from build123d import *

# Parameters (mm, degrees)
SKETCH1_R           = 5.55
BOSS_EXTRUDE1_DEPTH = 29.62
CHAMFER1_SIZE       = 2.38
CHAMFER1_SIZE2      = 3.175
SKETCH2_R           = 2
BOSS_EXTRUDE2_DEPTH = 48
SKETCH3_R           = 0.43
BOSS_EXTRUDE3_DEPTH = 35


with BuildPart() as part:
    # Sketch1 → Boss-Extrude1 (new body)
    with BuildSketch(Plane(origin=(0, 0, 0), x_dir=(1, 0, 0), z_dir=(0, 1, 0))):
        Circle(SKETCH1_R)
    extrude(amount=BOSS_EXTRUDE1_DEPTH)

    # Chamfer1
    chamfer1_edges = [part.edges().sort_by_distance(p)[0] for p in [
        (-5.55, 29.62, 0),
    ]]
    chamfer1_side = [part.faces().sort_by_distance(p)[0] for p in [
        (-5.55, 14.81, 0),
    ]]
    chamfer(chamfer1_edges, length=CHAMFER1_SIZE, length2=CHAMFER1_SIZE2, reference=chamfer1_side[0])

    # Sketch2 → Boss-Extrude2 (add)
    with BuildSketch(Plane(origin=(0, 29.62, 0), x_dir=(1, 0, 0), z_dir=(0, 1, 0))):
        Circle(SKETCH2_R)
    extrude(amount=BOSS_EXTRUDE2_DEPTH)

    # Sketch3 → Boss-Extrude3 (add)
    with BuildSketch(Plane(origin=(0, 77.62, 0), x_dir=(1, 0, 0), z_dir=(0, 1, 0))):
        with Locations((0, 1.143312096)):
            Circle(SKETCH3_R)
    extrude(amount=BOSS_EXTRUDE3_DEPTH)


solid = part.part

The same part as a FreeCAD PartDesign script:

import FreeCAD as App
import Part
import Sketcher
from FreeCAD import Vector


def edges_at(feature, points):
    """Names of the edges that pass closest to the given points."""
    edges = feature.Shape.Edges
    near = lambda p: min(range(len(edges)), key=lambda i: edges[i].distToShape(Part.Vertex(*p))[0])
    return sorted({f"Edge{near(p) + 1}" for p in points})

doc = App.newDocument("Part")
body = doc.addObject("PartDesign::Body", "Body")

sketch1 = body.newObject("Sketcher::SketchObject", "Sketch")
sketch1.AttachmentSupport = (doc.getObject("XZ_Plane"), [""])
sketch1.MapMode = "FlatFace"
sketch1.addGeometry(Part.Circle(Vector(0, 0, 0), Vector(0, 0, 1), 6), False)
sketch1.addConstraint(Sketcher.Constraint("Coincident", 0, 3, -1, 1))
sketch1.addConstraint(Sketcher.Constraint("Diameter", 0, 11.1))
pad1 = body.newObject("PartDesign::Pad", "Pad")
pad1.Profile = sketch1
pad1.Length = 29.62
pad1.Reversed = True
doc.recompute()

chamfer = body.newObject("PartDesign::Chamfer", "Chamfer")
chamfer.Base = (pad1, edges_at(pad1, [(-5.55, 29.62, 0)]))
chamfer.ChamferType = "Two distances"
chamfer.Size = 2.38
chamfer.Size2 = 3.175

sketch2 = body.newObject("Sketcher::SketchObject", "Sketch001")
sketch2.AttachmentSupport = (doc.getObject("XZ_Plane"), [""])
sketch2.MapMode = "FlatFace"
sketch2.AttachmentOffset = App.Placement(Vector(0, 0, -29.62), App.Rotation())
sketch2.addGeometry(Part.Circle(Vector(0, 0, 0), Vector(0, 0, 1), 2), False)
sketch2.addConstraint(Sketcher.Constraint("Coincident", 0, 3, -1, 1))
sketch2.addConstraint(Sketcher.Constraint("Diameter", 0, 4.0))
pad2 = body.newObject("PartDesign::Pad", "Pad001")
pad2.Profile = sketch2
pad2.Length = 48
pad2.Reversed = True

sketch3 = body.newObject("Sketcher::SketchObject", "Sketch002")
sketch3.AttachmentSupport = (doc.getObject("XZ_Plane"), [""])
sketch3.MapMode = "FlatFace"
sketch3.AttachmentOffset = App.Placement(Vector(0, 0, -77.62), App.Rotation())
sketch3.addGeometry(Part.Circle(Vector(0, -1.14, 0), Vector(0, 0, 1), 0.43), False)
sketch3.addConstraint(Sketcher.Constraint("PointOnObject", 0, 3, -2))
sketch3.addConstraint(Sketcher.Constraint("Diameter", 0, 0.86))
sketch3.addConstraint(Sketcher.Constraint("DistanceY", 0, 3, -1, 1, 1.143312))
pad3 = body.newObject("PartDesign::Pad", "Pad002")
pad3.Profile = sketch3
pad3.Length = 35
pad3.Reversed = True

doc.recompute()
